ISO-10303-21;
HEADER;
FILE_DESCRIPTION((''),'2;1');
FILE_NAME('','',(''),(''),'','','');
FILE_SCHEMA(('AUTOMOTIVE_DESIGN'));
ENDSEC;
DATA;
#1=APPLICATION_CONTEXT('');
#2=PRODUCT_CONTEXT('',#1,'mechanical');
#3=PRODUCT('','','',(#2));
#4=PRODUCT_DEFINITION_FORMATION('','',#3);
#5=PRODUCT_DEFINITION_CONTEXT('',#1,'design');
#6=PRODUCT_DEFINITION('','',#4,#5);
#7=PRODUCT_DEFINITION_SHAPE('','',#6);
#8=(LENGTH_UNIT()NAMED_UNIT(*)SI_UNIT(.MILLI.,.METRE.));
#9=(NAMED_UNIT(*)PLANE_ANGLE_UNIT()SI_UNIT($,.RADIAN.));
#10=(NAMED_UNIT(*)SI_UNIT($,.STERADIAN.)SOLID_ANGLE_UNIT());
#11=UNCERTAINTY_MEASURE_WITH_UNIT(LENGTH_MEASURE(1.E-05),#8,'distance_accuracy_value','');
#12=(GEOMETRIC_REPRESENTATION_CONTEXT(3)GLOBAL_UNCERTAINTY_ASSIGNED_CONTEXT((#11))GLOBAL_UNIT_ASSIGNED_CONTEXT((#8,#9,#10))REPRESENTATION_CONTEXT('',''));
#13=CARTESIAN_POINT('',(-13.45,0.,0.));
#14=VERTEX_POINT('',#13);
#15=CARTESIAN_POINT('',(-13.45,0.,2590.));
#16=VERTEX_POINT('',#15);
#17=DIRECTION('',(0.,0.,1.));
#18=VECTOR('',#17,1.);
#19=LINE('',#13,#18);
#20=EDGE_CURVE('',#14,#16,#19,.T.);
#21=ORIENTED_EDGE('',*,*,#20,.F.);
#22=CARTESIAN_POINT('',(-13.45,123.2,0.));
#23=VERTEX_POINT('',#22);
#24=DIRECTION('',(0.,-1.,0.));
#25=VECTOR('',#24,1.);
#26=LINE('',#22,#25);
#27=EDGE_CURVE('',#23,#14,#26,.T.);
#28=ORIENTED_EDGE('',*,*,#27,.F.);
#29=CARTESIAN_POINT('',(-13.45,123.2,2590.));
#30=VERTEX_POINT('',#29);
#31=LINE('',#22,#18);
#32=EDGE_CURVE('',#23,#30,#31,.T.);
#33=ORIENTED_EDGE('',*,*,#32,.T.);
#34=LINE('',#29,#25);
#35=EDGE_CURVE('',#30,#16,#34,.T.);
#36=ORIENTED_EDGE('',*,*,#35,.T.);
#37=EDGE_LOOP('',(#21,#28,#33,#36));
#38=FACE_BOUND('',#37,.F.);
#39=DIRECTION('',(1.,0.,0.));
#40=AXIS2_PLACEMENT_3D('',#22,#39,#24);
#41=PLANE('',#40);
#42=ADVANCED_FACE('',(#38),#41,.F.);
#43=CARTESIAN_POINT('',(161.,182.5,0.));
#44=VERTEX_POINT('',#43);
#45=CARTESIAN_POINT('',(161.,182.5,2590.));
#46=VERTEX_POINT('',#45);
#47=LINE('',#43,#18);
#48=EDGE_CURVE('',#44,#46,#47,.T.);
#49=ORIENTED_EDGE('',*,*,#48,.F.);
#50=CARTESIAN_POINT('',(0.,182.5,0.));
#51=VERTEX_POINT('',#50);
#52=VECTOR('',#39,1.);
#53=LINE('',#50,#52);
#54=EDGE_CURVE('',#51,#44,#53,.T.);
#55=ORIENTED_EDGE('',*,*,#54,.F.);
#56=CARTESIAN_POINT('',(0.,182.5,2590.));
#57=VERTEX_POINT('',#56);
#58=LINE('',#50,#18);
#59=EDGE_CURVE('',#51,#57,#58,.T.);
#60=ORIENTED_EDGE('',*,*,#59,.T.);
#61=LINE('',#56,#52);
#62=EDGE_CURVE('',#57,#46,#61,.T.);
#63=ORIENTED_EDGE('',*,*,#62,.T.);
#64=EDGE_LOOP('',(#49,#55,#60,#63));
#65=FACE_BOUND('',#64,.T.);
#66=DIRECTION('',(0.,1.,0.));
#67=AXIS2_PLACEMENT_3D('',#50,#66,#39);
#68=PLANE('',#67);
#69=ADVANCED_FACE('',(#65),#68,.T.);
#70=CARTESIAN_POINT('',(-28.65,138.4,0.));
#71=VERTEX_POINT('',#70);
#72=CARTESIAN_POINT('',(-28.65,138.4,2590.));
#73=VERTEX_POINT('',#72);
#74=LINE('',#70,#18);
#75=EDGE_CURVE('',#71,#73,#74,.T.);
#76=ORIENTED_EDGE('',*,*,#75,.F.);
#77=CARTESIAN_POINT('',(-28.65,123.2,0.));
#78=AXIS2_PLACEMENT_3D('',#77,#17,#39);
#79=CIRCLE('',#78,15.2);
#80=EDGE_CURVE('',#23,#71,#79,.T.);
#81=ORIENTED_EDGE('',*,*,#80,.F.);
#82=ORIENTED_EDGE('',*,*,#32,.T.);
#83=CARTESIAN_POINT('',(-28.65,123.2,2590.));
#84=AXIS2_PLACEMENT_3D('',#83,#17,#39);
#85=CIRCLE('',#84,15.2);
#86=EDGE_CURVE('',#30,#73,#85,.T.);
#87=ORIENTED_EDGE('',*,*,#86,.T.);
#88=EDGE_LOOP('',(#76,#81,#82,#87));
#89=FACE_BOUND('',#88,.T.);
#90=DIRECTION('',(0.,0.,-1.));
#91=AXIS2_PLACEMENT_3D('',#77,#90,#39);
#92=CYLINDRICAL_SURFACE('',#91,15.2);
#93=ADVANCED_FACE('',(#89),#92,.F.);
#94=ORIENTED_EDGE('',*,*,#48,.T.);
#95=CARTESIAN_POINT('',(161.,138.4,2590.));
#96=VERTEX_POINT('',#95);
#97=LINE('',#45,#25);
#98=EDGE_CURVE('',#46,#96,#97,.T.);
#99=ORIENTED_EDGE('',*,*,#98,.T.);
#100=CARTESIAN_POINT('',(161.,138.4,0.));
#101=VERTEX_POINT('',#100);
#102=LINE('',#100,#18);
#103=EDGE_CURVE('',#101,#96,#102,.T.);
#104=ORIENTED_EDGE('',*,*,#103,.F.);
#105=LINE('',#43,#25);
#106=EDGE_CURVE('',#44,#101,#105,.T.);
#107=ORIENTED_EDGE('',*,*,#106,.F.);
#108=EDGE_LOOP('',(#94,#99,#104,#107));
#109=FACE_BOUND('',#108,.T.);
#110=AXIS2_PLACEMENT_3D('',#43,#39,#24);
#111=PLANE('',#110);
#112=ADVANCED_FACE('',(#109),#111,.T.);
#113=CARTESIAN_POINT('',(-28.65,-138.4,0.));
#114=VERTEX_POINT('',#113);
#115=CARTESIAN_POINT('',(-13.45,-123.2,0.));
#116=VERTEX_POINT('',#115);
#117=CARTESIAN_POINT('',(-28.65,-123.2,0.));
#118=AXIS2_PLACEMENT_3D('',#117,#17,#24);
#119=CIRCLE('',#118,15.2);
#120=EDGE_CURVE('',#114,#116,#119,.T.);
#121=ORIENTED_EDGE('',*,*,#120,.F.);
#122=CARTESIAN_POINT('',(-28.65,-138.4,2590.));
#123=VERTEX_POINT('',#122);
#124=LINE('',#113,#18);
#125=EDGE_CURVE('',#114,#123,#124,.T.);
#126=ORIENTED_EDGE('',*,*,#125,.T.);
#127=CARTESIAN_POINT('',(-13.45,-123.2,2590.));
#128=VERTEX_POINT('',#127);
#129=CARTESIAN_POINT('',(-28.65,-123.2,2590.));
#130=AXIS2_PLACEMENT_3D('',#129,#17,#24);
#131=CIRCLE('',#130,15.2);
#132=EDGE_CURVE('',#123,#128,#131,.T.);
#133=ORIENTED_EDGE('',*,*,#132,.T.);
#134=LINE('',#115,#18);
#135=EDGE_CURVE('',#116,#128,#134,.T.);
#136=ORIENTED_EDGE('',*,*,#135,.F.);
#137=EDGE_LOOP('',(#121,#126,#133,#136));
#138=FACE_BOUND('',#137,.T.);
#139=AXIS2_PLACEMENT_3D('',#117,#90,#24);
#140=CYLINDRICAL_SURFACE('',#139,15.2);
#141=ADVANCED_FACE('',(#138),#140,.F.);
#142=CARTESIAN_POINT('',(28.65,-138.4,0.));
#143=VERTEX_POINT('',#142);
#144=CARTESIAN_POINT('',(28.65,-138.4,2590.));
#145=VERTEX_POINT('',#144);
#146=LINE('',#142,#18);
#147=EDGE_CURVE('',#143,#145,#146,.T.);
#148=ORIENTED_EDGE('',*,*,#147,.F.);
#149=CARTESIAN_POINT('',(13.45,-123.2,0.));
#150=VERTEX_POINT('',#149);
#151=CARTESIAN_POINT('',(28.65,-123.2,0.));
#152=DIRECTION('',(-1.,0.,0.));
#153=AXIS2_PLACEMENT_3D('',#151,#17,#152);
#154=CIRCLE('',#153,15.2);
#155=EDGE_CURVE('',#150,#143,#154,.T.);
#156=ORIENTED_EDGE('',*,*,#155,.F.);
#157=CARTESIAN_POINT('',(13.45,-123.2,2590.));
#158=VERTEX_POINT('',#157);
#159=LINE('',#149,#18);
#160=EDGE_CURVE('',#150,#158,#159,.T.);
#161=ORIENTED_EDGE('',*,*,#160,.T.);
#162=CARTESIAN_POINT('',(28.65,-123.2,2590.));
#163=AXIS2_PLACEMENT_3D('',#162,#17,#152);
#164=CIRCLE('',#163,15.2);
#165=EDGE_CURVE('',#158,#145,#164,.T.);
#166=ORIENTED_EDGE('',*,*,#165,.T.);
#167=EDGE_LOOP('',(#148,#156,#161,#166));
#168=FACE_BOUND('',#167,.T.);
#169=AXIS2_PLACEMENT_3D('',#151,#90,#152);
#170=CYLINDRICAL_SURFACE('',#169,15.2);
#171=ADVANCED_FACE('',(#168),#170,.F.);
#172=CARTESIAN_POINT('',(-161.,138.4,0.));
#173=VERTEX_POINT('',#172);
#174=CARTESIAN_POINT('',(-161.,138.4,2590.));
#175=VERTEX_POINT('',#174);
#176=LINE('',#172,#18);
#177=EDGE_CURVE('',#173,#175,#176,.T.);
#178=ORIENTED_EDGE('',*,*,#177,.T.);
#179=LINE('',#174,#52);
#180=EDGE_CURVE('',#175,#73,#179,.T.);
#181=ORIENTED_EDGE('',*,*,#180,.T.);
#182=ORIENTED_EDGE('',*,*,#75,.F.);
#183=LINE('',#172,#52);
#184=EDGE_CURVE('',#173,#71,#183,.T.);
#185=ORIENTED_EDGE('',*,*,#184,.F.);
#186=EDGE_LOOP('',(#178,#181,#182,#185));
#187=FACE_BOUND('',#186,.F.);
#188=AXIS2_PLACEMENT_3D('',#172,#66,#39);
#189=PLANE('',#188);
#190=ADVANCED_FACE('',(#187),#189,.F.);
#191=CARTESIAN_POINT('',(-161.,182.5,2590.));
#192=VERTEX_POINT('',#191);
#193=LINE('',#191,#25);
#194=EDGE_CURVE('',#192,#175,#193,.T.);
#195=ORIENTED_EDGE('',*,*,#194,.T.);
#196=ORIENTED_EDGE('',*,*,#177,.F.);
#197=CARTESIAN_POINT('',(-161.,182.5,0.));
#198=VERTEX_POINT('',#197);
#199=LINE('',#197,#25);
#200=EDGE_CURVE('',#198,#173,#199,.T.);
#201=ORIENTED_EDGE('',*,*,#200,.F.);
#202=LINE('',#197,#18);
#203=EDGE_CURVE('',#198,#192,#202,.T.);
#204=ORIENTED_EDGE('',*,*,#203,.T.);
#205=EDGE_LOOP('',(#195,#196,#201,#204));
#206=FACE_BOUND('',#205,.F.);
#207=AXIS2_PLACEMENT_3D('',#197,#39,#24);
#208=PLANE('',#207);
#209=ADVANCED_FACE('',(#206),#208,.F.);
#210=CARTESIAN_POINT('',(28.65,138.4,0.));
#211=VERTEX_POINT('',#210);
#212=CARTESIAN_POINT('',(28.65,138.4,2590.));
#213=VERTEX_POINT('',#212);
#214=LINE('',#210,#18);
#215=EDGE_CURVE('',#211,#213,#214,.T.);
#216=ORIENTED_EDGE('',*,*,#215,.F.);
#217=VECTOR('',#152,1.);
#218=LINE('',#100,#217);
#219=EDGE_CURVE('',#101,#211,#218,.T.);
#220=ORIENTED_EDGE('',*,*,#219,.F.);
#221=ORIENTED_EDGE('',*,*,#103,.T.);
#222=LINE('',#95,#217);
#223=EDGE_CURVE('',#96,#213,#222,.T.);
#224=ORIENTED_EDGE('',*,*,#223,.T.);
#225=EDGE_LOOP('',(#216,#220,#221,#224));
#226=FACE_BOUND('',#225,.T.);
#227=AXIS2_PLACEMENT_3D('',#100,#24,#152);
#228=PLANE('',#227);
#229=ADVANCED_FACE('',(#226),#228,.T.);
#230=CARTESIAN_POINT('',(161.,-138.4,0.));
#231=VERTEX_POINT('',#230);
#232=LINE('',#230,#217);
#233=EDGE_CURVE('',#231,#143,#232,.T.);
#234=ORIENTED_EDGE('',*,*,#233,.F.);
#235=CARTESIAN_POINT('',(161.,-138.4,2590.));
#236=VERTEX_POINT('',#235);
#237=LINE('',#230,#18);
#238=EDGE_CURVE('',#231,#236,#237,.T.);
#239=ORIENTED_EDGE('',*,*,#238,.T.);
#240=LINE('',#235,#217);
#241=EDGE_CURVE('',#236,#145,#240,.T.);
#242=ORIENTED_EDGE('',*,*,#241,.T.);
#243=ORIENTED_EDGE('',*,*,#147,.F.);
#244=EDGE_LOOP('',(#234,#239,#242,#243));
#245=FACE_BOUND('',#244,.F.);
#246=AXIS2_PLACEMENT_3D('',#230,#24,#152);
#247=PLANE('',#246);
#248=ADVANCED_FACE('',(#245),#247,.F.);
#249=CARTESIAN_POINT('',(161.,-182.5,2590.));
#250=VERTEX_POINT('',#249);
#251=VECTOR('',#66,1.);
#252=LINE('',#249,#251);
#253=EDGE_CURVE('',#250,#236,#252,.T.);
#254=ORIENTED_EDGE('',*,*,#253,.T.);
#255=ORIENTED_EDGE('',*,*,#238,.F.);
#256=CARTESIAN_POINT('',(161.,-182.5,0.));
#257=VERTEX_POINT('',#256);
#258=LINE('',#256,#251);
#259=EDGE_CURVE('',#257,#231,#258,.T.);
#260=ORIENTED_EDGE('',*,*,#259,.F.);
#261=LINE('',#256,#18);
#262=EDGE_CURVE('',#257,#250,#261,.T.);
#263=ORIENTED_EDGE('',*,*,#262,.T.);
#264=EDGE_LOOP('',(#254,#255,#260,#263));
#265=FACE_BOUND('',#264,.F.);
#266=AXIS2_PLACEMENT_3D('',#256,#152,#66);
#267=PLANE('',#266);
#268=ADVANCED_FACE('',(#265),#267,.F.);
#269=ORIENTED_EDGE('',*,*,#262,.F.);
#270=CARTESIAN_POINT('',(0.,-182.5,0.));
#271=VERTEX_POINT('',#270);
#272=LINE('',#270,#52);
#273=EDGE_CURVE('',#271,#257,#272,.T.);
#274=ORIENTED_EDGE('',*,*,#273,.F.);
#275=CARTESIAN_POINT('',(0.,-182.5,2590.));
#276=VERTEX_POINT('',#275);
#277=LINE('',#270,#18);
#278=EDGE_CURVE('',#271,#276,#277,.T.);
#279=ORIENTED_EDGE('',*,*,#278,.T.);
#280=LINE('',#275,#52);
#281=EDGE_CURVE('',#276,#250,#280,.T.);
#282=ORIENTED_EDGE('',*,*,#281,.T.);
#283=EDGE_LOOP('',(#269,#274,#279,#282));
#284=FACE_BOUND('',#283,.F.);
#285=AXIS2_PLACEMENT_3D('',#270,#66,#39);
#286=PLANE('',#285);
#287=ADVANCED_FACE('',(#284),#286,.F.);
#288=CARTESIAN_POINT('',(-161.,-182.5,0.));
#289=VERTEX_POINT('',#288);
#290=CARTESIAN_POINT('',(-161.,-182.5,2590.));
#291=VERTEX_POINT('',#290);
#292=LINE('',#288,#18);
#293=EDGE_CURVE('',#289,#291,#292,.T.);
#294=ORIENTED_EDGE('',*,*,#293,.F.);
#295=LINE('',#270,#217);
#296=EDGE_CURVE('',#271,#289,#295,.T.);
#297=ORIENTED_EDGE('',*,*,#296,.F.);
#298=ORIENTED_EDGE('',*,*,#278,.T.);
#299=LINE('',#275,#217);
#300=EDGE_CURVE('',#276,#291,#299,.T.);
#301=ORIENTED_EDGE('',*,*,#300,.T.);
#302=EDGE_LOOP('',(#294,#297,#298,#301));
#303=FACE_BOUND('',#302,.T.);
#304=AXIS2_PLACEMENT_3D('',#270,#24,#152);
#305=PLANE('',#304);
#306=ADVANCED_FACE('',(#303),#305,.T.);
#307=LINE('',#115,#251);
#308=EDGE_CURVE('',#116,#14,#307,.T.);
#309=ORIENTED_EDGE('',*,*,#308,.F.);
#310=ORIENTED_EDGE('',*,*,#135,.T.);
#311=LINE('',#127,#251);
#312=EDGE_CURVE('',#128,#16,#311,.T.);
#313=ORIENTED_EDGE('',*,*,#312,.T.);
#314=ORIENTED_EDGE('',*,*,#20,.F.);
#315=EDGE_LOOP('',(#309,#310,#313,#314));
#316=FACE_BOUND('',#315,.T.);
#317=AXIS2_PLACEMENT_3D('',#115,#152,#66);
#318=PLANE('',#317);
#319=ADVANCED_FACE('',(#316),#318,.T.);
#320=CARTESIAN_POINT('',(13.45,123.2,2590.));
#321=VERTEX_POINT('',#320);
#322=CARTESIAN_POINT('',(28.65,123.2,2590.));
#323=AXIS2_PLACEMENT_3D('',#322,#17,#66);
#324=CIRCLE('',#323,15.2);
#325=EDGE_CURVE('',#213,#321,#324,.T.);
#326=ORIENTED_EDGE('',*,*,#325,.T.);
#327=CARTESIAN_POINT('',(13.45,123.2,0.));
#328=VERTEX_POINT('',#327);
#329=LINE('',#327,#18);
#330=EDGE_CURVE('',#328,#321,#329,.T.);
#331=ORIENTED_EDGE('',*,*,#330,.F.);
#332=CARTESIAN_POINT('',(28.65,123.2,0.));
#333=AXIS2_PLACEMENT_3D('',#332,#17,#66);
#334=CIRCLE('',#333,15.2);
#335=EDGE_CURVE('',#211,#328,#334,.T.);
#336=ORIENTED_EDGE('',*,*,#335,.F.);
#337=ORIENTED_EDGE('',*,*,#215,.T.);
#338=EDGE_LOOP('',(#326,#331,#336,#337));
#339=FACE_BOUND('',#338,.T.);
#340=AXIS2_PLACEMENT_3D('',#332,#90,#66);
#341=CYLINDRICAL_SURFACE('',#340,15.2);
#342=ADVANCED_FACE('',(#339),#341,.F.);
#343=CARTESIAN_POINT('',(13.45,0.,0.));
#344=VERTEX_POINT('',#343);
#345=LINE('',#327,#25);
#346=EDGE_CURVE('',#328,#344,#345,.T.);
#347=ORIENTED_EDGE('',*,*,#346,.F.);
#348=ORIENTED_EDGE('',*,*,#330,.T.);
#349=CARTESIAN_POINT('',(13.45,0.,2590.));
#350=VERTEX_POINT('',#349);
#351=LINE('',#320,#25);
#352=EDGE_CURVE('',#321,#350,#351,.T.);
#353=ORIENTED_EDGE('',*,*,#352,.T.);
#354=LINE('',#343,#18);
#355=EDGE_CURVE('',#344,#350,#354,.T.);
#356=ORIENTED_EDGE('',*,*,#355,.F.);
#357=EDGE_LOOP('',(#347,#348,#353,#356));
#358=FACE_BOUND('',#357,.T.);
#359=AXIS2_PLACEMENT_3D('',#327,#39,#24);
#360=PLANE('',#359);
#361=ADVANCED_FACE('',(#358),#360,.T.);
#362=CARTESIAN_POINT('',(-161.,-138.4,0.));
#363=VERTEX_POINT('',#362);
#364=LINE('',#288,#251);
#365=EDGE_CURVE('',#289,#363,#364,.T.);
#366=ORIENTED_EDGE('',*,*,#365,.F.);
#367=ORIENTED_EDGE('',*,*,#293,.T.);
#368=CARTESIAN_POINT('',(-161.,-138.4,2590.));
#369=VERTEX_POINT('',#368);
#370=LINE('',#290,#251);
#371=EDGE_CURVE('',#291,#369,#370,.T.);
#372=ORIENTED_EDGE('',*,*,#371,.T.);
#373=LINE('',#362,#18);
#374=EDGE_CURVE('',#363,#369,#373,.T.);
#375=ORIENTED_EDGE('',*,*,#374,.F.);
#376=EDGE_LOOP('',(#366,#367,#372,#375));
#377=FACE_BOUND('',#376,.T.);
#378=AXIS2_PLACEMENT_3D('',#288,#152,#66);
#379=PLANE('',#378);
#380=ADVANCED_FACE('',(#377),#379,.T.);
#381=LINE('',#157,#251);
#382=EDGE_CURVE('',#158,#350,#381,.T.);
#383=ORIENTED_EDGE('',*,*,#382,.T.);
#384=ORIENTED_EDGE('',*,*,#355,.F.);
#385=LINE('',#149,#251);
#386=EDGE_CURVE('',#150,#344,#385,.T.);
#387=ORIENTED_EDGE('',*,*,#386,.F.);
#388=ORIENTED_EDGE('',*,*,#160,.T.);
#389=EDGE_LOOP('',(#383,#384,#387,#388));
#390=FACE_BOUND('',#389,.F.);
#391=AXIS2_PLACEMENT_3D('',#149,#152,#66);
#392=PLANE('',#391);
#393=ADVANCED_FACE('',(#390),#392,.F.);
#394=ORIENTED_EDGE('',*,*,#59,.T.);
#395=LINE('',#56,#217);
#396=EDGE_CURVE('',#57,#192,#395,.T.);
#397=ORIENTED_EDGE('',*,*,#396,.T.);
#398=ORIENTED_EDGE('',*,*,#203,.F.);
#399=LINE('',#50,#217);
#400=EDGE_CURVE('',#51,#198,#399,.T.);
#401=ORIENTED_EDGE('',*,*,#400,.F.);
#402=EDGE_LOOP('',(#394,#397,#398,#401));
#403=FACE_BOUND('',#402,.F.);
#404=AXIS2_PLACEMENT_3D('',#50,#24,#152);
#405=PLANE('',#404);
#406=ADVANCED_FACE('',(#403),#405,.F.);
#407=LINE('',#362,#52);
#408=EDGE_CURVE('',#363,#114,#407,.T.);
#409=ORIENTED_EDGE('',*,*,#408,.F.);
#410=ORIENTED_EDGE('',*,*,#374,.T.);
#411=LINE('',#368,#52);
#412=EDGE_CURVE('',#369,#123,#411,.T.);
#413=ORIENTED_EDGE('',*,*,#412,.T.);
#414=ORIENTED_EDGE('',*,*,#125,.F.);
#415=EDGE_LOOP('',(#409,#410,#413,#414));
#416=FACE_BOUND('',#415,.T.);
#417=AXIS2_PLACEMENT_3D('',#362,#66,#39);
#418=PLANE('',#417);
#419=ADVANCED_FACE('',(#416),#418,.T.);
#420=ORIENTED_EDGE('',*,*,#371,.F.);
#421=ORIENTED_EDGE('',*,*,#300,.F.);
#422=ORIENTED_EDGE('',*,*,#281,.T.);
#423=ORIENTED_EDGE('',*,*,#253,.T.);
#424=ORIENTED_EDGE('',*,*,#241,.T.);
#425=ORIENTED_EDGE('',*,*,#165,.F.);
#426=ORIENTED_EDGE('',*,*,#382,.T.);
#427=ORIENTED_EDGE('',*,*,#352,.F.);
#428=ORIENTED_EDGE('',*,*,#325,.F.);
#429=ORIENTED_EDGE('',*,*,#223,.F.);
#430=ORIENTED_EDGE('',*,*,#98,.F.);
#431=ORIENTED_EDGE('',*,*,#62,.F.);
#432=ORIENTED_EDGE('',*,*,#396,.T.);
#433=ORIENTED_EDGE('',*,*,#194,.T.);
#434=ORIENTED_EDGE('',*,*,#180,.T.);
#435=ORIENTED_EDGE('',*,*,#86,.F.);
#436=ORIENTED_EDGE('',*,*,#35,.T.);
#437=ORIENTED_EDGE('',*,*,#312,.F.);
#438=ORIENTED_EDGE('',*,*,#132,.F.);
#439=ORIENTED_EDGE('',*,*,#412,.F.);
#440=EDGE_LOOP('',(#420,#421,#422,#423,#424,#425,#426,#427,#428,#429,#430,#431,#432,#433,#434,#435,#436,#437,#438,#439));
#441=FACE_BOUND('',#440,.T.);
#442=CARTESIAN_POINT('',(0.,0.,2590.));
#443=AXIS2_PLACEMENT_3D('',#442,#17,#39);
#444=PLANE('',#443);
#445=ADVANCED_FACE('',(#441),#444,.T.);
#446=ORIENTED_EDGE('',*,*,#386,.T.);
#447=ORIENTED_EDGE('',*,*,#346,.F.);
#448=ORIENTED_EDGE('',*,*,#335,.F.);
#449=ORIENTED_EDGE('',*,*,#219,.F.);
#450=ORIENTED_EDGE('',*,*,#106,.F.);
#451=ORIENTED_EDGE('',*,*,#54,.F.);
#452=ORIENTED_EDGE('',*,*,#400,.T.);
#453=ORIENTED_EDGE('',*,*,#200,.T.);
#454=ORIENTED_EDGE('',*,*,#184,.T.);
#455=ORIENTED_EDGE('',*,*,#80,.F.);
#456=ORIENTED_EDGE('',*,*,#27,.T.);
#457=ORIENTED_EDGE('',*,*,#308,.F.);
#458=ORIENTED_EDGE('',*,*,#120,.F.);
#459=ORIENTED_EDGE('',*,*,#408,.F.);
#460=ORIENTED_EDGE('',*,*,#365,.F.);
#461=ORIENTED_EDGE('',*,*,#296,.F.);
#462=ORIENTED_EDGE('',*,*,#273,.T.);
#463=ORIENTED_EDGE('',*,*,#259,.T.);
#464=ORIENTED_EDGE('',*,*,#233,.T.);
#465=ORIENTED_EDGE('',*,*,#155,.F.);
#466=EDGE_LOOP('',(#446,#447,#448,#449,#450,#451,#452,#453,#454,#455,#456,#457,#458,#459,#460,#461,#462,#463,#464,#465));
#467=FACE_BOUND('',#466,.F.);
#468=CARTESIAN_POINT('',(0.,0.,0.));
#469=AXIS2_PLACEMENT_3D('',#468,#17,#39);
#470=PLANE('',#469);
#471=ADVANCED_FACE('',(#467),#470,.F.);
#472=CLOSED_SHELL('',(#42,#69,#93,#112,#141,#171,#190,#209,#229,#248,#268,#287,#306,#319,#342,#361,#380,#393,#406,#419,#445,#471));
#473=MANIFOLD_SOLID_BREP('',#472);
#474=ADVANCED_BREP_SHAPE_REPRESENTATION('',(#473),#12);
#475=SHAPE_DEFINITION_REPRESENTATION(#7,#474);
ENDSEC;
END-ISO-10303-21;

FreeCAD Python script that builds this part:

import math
import FreeCAD as App
import Part
import Sketcher

doc = App.newDocument("Part")
body = doc.addObject("PartDesign::Body", "Body")

# Sketch on XY plane
sketch1 = body.newObject("Sketcher::SketchObject", "Sketch")
sketch1.AttachmentSupport = (doc.getObject("XY_Plane"), [""])
sketch1.MapMode = "FlatFace"
sketch1.addGeometry([
    Part.LineSegment(App.Vector(-161, -138.4, 0), App.Vector(-161, -182.5, 0)),  # 0
    Part.LineSegment(App.Vector(-161, -182.5, 0), App.Vector(161, -182.5, 0)),  # 1
    Part.LineSegment(App.Vector(161, -182.5, 0), App.Vector(161, -138.4, 0)),  # 2
    Part.LineSegment(App.Vector(161, -138.4, 0), App.Vector(28.65, -138.4, 0)),  # 3
    Part.ArcOfCircle(Part.Circle(App.Vector(28.65, -123.2, 0), App.Vector(0, 0, 1), 15.2), math.radians(180), math.radians(270)),  # 4
    Part.LineSegment(App.Vector(13.45, -123.2, 0), App.Vector(13.45, 123.2, 0)),  # 5
    Part.ArcOfCircle(Part.Circle(App.Vector(28.65, 123.2, 0), App.Vector(0, 0, 1), 15.2), math.radians(90), math.radians(180)),  # 6
    Part.LineSegment(App.Vector(28.65, 138.4, 0), App.Vector(161, 138.4, 0)),  # 7
    Part.LineSegment(App.Vector(161, 138.4, 0), App.Vector(161, 182.5, 0)),  # 8
    Part.LineSegment(App.Vector(161, 182.5, 0), App.Vector(-161, 182.5, 0)),  # 9
    Part.LineSegment(App.Vector(-161, 182.5, 0), App.Vector(-161, 138.4, 0)),  # 10
    Part.LineSegment(App.Vector(-161, 138.4, 0), App.Vector(-28.65, 138.4, 0)),  # 11
    Part.ArcOfCircle(Part.Circle(App.Vector(-28.65, 123.2, 0), App.Vector(0, 0, 1), 15.2), math.radians(0), math.radians(90)),  # 12
    Part.LineSegment(App.Vector(-13.45, 123.2, 0), App.Vector(-13.45, -123.2, 0)),  # 13
    Part.ArcOfCircle(Part.Circle(App.Vector(-28.65, -123.2, 0), App.Vector(0, 0, 1), 15.2), math.radians(-90), math.radians(0)),  # 14
    Part.LineSegment(App.Vector(-28.65, -138.4, 0), App.Vector(-161, -138.4, 0)),  # 15
], False)
sketch1.addConstraint([
    Sketcher.Constraint("Coincident", 0, 2, 1, 1),
    Sketcher.Constraint("Coincident", 1, 2, 2, 1),
    Sketcher.Constraint("Coincident", 2, 2, 3, 1),
    Sketcher.Constraint("Tangent", 3, 2, 4, 2),
    Sketcher.Constraint("Tangent", 4, 1, 5, 1),
    Sketcher.Constraint("Tangent", 5, 2, 6, 2),
    Sketcher.Constraint("Tangent", 6, 1, 7, 1),
    Sketcher.Constraint("Coincident", 7, 2, 8, 1),
    Sketcher.Constraint("Coincident", 8, 2, 9, 1),
    Sketcher.Constraint("Coincident", 9, 2, 10, 1),
    Sketcher.Constraint("Coincident", 10, 2, 11, 1),
    Sketcher.Constraint("Tangent", 11, 2, 12, 2),
    Sketcher.Constraint("Tangent", 12, 1, 13, 1),
    Sketcher.Constraint("Tangent", 13, 2, 14, 2),
    Sketcher.Constraint("Tangent", 14, 1, 15, 1),
    Sketcher.Constraint("Coincident", 15, 2, 0, 1),
    Sketcher.Constraint("Vertical", 0),
    Sketcher.Constraint("Horizontal", 1),
    Sketcher.Constraint("Vertical", 2),
    Sketcher.Constraint("Horizontal", 3),
    Sketcher.Constraint("Vertical", 5),
    Sketcher.Constraint("Horizontal", 7),
    Sketcher.Constraint("Vertical", 8),
    Sketcher.Constraint("Horizontal", 9),
    Sketcher.Constraint("Vertical", 10),
    Sketcher.Constraint("Horizontal", 11),
    Sketcher.Constraint("Vertical", 13),
    Sketcher.Constraint("Horizontal", 15),
    Sketcher.Constraint("Equal", 4, 6),
    Sketcher.Constraint("Equal", 6, 12),
    Sketcher.Constraint("Equal", 12, 14),
    Sketcher.Constraint("Symmetric", 4, 3, 12, 3, -1, 1),
    Sketcher.Constraint("Symmetric", 0, 2, 8, 2, -1, 1),
    Sketcher.Constraint("Symmetric", 7, 2, 10, 2, -2),
    Sketcher.Constraint("Symmetric", 2, 2, 15, 2, -2),
    Sketcher.Constraint("Radius", 4, 15.2),
    Sketcher.Constraint("DistanceY", 0, 2, 0, 1, 44.1),
    Sketcher.Constraint("DistanceX", 0, 2, -1, 1, 161.0),
    Sketcher.Constraint("DistanceY", 0, 2, -1, 1, 182.5),
    Sketcher.Constraint("DistanceX", -1, 1, 4, 1, 13.45),
])
pad1 = body.newObject("PartDesign::Pad", "Pad")
pad1.Profile = sketch1
pad1.Length = 2590

doc.recompute()
